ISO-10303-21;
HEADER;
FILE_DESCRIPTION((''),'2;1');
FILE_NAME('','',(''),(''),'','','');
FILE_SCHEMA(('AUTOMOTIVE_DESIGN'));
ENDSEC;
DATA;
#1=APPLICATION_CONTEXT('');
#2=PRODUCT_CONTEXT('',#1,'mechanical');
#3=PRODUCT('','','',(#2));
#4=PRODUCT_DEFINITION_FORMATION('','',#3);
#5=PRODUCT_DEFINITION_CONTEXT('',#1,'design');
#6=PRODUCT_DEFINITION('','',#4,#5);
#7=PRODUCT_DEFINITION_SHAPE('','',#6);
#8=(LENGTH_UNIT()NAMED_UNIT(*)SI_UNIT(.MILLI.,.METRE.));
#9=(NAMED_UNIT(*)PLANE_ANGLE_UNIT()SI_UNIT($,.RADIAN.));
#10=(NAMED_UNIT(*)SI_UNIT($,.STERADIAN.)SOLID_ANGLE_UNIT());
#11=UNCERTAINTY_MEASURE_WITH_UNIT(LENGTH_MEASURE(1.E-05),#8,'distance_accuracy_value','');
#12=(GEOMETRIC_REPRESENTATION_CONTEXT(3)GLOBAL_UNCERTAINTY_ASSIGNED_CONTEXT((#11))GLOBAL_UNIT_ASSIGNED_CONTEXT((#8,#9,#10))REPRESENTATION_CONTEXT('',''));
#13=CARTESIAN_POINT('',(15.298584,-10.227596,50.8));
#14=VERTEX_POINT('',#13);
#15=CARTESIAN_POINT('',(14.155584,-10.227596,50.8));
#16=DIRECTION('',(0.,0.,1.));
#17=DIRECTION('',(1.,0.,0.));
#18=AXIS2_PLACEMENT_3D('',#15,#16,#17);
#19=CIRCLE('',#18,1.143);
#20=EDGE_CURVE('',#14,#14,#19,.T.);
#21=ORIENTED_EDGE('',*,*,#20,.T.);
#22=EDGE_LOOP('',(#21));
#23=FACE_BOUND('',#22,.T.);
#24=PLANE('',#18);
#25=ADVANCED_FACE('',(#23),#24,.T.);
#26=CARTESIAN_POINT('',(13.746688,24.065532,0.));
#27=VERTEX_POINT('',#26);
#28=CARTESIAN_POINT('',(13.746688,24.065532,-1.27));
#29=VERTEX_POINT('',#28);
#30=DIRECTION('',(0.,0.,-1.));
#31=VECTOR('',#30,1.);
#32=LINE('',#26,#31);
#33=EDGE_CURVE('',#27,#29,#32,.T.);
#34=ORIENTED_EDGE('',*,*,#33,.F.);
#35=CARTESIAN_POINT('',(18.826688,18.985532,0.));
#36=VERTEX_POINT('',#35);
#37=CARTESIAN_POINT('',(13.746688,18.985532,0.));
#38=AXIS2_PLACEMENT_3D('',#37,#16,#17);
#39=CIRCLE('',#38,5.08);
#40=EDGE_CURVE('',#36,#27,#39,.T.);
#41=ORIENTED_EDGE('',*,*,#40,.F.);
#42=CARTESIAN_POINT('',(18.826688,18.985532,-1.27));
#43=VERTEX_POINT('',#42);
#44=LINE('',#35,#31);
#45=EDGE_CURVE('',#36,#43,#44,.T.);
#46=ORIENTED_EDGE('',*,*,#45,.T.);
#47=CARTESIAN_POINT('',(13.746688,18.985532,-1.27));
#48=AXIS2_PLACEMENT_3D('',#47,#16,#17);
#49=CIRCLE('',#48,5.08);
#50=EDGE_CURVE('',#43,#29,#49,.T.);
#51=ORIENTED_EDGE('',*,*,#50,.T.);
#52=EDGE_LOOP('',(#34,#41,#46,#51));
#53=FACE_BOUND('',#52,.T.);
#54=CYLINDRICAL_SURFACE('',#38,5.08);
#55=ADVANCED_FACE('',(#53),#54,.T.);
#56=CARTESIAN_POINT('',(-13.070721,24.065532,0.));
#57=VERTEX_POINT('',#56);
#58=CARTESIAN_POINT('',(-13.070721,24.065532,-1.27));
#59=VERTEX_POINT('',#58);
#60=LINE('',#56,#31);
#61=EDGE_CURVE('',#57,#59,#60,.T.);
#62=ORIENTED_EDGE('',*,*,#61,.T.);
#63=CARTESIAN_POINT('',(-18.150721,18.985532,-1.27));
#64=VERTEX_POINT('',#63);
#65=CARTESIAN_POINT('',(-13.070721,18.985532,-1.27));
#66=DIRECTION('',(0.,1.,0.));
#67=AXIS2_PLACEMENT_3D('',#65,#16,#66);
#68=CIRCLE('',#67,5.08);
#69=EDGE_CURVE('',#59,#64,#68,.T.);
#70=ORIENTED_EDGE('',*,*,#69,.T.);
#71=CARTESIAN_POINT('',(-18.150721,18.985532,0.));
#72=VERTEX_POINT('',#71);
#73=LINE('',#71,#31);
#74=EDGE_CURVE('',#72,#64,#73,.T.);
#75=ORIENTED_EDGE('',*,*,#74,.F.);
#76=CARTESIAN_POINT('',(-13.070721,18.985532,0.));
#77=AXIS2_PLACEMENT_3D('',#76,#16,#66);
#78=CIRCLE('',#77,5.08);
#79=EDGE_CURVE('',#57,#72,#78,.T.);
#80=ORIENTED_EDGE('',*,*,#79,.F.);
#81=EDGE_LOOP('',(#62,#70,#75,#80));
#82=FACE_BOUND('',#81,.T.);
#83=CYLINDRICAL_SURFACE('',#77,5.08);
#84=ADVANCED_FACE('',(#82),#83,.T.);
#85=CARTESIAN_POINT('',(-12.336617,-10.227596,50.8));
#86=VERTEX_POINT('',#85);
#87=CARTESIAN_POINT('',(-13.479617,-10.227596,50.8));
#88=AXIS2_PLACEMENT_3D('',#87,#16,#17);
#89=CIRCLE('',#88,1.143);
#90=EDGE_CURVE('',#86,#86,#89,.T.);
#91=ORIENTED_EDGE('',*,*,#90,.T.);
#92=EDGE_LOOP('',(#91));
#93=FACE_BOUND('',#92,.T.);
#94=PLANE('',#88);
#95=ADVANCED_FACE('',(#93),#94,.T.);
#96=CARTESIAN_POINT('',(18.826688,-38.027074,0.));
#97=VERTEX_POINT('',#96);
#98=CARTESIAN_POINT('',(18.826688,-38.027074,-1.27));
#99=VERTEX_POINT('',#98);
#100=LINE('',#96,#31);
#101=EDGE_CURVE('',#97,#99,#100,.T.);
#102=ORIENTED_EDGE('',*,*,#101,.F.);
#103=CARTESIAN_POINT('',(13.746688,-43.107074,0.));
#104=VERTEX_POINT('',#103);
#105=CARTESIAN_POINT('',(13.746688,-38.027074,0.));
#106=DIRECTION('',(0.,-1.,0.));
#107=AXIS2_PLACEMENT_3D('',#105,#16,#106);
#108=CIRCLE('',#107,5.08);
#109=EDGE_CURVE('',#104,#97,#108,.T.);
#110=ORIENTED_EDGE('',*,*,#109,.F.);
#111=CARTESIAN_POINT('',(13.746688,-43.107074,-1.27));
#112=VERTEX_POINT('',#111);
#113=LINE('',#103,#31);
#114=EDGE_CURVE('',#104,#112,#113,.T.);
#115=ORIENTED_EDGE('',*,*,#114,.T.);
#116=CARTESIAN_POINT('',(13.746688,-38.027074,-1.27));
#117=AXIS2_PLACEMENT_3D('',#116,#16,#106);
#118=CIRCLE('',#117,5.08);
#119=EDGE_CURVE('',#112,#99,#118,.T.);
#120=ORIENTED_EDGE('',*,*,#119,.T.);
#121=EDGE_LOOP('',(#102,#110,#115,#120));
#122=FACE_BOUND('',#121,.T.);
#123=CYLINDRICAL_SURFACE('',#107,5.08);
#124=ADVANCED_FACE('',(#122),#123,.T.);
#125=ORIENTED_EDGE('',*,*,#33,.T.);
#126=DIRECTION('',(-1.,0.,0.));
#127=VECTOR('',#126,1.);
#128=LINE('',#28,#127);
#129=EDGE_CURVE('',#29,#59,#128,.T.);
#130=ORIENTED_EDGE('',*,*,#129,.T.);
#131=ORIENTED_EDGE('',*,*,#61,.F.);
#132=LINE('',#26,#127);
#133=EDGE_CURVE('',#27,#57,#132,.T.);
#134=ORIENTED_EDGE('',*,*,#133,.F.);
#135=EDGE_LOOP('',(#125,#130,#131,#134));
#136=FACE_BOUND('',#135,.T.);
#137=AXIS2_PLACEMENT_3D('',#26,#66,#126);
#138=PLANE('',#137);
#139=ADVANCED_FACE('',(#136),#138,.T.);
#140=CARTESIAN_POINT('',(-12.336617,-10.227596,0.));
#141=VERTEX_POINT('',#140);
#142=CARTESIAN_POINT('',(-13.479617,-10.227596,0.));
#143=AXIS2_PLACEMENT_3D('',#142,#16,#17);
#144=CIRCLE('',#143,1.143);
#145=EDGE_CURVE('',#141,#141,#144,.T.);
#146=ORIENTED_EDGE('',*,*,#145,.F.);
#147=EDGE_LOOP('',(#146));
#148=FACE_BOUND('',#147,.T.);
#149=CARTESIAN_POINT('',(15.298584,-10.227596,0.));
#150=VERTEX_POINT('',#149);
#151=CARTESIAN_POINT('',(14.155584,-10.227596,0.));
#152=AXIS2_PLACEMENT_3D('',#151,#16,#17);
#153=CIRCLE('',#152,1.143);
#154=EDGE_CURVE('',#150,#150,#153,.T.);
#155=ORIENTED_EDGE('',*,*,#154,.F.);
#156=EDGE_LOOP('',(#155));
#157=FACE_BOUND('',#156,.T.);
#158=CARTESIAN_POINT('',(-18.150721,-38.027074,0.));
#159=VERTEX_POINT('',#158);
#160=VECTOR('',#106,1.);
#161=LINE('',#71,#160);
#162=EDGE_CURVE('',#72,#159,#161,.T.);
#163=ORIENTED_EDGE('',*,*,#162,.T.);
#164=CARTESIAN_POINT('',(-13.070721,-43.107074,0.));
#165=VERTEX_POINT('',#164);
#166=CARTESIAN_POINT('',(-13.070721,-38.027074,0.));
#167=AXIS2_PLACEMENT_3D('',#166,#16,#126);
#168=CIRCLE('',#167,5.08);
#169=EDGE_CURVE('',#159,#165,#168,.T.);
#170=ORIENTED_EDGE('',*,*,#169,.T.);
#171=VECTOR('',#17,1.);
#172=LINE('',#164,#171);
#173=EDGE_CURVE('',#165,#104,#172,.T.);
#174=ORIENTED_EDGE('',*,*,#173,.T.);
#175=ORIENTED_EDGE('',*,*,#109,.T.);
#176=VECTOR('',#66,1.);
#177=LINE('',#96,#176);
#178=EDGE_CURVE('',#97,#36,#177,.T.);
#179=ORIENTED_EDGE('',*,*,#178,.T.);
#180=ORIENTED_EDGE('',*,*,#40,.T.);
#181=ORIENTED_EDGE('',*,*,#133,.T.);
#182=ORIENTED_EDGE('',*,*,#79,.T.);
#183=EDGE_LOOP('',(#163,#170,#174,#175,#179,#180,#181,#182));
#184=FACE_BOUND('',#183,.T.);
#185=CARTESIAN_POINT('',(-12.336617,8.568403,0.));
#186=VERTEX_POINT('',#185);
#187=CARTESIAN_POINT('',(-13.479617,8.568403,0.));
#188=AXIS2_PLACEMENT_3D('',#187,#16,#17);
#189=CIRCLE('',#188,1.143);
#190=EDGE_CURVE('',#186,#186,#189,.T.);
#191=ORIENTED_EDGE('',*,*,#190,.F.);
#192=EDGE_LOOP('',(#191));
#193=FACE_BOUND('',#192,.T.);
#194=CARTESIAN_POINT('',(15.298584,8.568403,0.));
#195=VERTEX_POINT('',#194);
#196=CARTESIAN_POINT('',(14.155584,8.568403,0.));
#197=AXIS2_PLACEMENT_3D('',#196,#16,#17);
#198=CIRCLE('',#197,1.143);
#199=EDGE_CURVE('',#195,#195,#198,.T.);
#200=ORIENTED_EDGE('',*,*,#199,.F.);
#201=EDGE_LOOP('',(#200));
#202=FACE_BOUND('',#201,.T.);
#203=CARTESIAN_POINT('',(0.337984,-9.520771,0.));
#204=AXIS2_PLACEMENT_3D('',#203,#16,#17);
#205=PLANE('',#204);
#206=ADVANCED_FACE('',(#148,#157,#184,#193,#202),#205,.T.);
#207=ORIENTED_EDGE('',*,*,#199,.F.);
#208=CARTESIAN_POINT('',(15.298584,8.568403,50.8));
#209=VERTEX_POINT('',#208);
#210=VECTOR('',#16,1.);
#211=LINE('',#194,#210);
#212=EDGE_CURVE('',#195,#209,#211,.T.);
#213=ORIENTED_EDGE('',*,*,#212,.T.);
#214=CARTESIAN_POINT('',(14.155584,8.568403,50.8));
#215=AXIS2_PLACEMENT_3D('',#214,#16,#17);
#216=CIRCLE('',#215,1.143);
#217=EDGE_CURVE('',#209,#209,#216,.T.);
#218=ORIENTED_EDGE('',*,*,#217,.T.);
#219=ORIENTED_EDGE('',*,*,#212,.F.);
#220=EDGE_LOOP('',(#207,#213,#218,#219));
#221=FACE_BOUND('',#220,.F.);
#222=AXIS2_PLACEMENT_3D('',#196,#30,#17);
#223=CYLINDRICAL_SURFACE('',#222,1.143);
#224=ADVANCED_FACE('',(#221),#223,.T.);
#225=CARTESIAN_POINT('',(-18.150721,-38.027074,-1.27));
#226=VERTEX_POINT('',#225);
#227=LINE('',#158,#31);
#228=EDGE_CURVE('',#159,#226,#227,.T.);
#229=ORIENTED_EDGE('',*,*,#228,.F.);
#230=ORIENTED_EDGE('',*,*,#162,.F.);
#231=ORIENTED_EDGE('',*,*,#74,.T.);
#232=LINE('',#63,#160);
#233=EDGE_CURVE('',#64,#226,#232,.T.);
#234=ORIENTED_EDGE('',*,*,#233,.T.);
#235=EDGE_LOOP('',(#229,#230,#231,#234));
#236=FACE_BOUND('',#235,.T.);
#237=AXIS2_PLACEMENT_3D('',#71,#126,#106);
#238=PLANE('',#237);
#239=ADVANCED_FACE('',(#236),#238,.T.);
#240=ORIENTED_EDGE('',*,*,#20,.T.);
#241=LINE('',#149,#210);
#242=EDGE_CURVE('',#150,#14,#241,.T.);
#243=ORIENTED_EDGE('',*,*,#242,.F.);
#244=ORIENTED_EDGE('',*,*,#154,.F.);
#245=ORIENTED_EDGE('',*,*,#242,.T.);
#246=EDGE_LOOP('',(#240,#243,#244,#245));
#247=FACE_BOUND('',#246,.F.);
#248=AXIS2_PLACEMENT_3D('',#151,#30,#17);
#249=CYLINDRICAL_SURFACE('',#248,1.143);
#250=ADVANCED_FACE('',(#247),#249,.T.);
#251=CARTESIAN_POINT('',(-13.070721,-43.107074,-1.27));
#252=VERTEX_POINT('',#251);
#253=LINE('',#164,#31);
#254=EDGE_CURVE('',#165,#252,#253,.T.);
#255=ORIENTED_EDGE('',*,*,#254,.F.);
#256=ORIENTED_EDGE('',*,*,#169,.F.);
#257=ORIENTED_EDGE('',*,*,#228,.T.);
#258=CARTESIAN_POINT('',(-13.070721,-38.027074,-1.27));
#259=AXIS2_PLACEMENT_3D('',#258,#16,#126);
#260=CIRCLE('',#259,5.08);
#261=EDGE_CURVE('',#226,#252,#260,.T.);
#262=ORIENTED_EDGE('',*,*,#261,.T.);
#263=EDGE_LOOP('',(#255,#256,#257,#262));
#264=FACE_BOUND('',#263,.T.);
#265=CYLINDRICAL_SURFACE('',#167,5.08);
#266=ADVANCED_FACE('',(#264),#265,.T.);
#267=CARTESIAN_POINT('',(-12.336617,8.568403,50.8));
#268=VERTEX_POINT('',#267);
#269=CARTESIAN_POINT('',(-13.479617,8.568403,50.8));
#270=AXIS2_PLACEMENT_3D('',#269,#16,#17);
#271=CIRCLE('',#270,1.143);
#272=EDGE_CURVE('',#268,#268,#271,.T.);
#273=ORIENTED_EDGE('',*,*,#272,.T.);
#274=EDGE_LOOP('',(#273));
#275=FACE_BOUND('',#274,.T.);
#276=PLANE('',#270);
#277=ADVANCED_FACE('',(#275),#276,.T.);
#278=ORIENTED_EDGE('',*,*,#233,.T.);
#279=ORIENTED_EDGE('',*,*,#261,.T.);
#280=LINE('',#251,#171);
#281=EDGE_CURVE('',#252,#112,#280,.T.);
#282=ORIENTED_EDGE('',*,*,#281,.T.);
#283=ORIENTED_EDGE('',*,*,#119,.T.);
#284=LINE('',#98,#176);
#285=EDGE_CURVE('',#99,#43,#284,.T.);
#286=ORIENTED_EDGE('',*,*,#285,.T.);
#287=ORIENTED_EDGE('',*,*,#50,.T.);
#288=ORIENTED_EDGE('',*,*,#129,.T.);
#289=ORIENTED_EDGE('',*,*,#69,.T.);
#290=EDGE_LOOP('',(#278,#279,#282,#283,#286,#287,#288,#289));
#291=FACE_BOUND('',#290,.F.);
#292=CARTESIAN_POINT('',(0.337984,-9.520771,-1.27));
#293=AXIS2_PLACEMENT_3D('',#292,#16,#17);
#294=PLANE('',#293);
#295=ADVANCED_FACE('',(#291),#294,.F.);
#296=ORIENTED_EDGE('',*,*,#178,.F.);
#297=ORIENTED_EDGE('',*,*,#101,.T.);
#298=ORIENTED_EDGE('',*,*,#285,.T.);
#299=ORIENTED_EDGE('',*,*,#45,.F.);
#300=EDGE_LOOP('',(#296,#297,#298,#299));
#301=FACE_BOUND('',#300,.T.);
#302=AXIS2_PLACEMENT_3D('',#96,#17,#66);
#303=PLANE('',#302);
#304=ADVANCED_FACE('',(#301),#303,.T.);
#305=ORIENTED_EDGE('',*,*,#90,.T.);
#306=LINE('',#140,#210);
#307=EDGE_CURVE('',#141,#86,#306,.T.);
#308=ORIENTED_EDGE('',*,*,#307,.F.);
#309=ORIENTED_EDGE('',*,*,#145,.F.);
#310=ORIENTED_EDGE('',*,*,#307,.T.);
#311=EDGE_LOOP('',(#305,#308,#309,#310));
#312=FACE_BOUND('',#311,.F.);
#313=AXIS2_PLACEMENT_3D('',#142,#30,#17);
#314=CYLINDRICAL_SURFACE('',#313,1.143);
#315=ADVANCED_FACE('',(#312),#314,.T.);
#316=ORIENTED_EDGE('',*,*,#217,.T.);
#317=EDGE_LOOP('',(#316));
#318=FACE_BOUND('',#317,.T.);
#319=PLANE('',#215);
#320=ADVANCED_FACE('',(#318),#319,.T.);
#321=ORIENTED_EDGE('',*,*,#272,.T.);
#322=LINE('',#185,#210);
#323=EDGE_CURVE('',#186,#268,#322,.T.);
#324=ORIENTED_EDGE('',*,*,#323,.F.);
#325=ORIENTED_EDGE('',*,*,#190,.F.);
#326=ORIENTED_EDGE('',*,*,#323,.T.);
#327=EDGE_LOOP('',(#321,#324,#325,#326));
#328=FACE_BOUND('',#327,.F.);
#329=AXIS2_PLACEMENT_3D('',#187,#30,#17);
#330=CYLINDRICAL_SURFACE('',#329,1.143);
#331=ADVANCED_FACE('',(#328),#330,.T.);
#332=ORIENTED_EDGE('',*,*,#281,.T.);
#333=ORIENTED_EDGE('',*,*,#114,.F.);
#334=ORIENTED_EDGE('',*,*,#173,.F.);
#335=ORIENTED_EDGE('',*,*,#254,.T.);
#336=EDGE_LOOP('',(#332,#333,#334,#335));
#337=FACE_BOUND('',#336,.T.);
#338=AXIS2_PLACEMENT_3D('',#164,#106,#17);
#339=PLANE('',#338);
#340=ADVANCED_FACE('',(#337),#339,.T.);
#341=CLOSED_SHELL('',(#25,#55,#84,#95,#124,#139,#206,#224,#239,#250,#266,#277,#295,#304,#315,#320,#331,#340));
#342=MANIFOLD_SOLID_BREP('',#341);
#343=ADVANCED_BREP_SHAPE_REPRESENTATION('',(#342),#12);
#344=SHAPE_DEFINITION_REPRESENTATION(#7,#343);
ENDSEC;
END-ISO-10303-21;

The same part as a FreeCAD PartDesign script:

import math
import FreeCAD as App
import Part
import Sketcher
Q = App.Units.Quantity

doc = App.newDocument("Part")
body = doc.addObject("PartDesign::Body", "Body")

# Sketch on XY plane
sketch1 = doc.addObject("Sketcher::SketchObject", "Sketch")
body.addObject(sketch1)
sketch1.AttachmentSupport = (doc.XY_Plane, [""])
sketch1.MapMode = "FlatFace"
sketch1.addGeometry(Part.Circle(App.Vector(-13.5, -10.2, 0), App.Vector(0, 0, 1), 1.1), False)
sketch1.addConstraint(Sketcher.Constraint("Diameter", 0, Q("0.09 in")))
sketch1.addConstraint(Sketcher.Constraint("DistanceX", 0, 3, -1, 1, Q("13.479617 mm")))
sketch1.addConstraint(Sketcher.Constraint("DistanceY", 0, 3, -1, 1, Q("10.227596 mm")))
pad1 = doc.addObject("PartDesign::Pad", "Pad")
body.addObject(pad1)
pad1.Profile = sketch1
pad1.Length = Q("2 in")
body2 = doc.addObject("PartDesign::Body", "Body001")

# Sketch on XY plane
sketch2 = doc.addObject("Sketcher::SketchObject", "Sketch001")
body2.addObject(sketch2)
sketch2.AttachmentSupport = (doc.getObject("XY_Plane001"), [""])
sketch2.MapMode = "FlatFace"
sketch2.addGeometry(Part.Circle(App.Vector(-13.5, 8.6, 0), App.Vector(0, 0, 1), 1.1), False)
sketch2.addConstraint(Sketcher.Constraint("Diameter", 0, Q("0.09 in")))
sketch2.addConstraint(Sketcher.Constraint("DistanceX", 0, 3, -1, 1, Q("13.479617 mm")))
sketch2.addConstraint(Sketcher.Constraint("DistanceY", -1, 1, 0, 3, Q("8.568403 mm")))
pad2 = doc.addObject("PartDesign::Pad", "Pad001")
body2.addObject(pad2)
pad2.Profile = sketch2
pad2.Length = Q("2 in")
body3 = doc.addObject("PartDesign::Body", "Body002")

# Sketch on XY plane
sketch3 = doc.addObject("Sketcher::SketchObject", "Sketch002")
body3.addObject(sketch3)
sketch3.AttachmentSupport = (doc.getObject("XY_Plane002"), [""])
sketch3.MapMode = "FlatFace"
sketch3.addGeometry(Part.Circle(App.Vector(14.2, 8.6, 0), App.Vector(0, 0, 1), 1.1), False)
sketch3.addConstraint(Sketcher.Constraint("Diameter", 0, Q("0.09 in")))
sketch3.addConstraint(Sketcher.Constraint("DistanceX", -1, 1, 0, 3, Q("14.155584 mm")))
sketch3.addConstraint(Sketcher.Constraint("DistanceY", -1, 1, 0, 3, Q("8.568403 mm")))
pad3 = doc.addObject("PartDesign::Pad", "Pad002")
body3.addObject(pad3)
pad3.Profile = sketch3
pad3.Length = Q("2 in")
body4 = doc.addObject("PartDesign::Body", "Body003")

# Sketch on XY plane
sketch4 = doc.addObject("Sketcher::SketchObject", "Sketch003")
body4.addObject(sketch4)
sketch4.AttachmentSupport = (doc.getObject("XY_Plane003"), [""])
sketch4.MapMode = "FlatFace"
sketch4.addGeometry(Part.Circle(App.Vector(14.2, -10.2, 0), App.Vector(0, 0, 1), 1.1), False)
sketch4.addConstraint(Sketcher.Constraint("Diameter", 0, Q("0.09 in")))
sketch4.addConstraint(Sketcher.Constraint("DistanceX", -1, 1, 0, 3, Q("14.155584 mm")))
sketch4.addConstraint(Sketcher.Constraint("DistanceY", 0, 3, -1, 1, Q("10.227596 mm")))
pad4 = doc.addObject("PartDesign::Pad", "Pad003")
body4.addObject(pad4)
pad4.Profile = sketch4
pad4.Length = Q("2 in")
body.AllowCompound = True
doc.recompute()

boolean = doc.addObject("PartDesign::Boolean", "Boolean")
body.addObject(boolean)
boolean.Type = "Fuse"
boolean.addObjects([body2])
doc.recompute()

boolean2 = doc.addObject("PartDesign::Boolean", "Boolean001")
body.addObject(boolean2)
boolean2.Type = "Fuse"
boolean2.addObjects([body3])
doc.recompute()

boolean3 = doc.addObject("PartDesign::Boolean", "Boolean002")
body.addObject(boolean3)
boolean3.Type = "Fuse"
boolean3.addObjects([body4])

# Sketch on XY plane
sketch5 = doc.addObject("Sketcher::SketchObject", "Sketch004")
body.addObject(sketch5)
sketch5.AttachmentSupport = (doc.XY_Plane, [""])
sketch5.MapMode = "FlatFace"
sketch5.addGeometry(Part.ArcOfCircle(Part.Circle(App.Vector(14, 19, 0), App.Vector(0, 0, 1), 5), math.radians(0), math.radians(90)), False)
sketch5.addGeometry(Part.LineSegment(App.Vector(14, 24, 0), App.Vector(-13, 24, 0)), False)
sketch5.addGeometry(Part.ArcOfCircle(Part.Circle(App.Vector(-13, 19, 0), App.Vector(0, 0, 1), 5), math.radians(90), math.radians(180)), False)
sketch5.addGeometry(Part.LineSegment(App.Vector(-18, 19, 0), App.Vector(-18, -38, 0)), False)
sketch5.addGeometry(Part.ArcOfCircle(Part.Circle(App.Vector(-13, -38, 0), App.Vector(0, 0, 1), 5), math.radians(180), math.radians(270)), False)
sketch5.addGeometry(Part.LineSegment(App.Vector(-13, -43, 0), App.Vector(14, -43, 0)), False)
sketch5.addGeometry(Part.ArcOfCircle(Part.Circle(App.Vector(14, -38, 0), App.Vector(0, 0, 1), 5), math.radians(-90), math.radians(0)), False)
sketch5.addGeometry(Part.LineSegment(App.Vector(19, -38, 0), App.Vector(19, 19, 0)), False)
sketch5.addConstraint(Sketcher.Constraint("Tangent", 0, 2, 1, 1))
sketch5.addConstraint(Sketcher.Constraint("Tangent", 1, 2, 2, 1))
sketch5.addConstraint(Sketcher.Constraint("Tangent", 2, 2, 3, 1))
sketch5.addConstraint(Sketcher.Constraint("Tangent", 3, 2, 4, 1))
sketch5.addConstraint(Sketcher.Constraint("Tangent", 4, 2, 5, 1))
sketch5.addConstraint(Sketcher.Constraint("Tangent", 5, 2, 6, 1))
sketch5.addConstraint(Sketcher.Constraint("Tangent", 6, 2, 7, 1))
sketch5.addConstraint(Sketcher.Constraint("Tangent", 7, 2, 0, 1))
sketch5.addConstraint(Sketcher.Constraint("Horizontal", 1))
sketch5.addConstraint(Sketcher.Constraint("Vertical", 3))
sketch5.addConstraint(Sketcher.Constraint("Horizontal", 5))
sketch5.addConstraint(Sketcher.Constraint("Vertical", 7))
sketch5.addConstraint(Sketcher.Constraint("Equal", 0, 2))
sketch5.addConstraint(Sketcher.Constraint("Equal", 2, 4))
sketch5.addConstraint(Sketcher.Constraint("Equal", 4, 6))
sketch5.addConstraint(Sketcher.Constraint("Radius", 0, Q("0.2 in")))
sketch5.addConstraint(Sketcher.Constraint("DistanceX", 1, 2, 1, 1, Q("26.817408 mm")))
sketch5.addConstraint(Sketcher.Constraint("DistanceY", 3, 2, 3, 1, Q("57.012605 mm")))
sketch5.addConstraint(Sketcher.Constraint("DistanceY", -1, 1, 0, 3, Q("18.985532 mm")))
sketch5.addConstraint(Sketcher.Constraint("DistanceX", 2, 3, -1, 1, Q("13.070721 mm")))
pad5 = doc.addObject("PartDesign::Pad", "Pad004")
body.addObject(pad5)
pad5.Profile = sketch5
pad5.Length = Q("0.05 in")
pad5.Reversed = True

doc.recompute()
